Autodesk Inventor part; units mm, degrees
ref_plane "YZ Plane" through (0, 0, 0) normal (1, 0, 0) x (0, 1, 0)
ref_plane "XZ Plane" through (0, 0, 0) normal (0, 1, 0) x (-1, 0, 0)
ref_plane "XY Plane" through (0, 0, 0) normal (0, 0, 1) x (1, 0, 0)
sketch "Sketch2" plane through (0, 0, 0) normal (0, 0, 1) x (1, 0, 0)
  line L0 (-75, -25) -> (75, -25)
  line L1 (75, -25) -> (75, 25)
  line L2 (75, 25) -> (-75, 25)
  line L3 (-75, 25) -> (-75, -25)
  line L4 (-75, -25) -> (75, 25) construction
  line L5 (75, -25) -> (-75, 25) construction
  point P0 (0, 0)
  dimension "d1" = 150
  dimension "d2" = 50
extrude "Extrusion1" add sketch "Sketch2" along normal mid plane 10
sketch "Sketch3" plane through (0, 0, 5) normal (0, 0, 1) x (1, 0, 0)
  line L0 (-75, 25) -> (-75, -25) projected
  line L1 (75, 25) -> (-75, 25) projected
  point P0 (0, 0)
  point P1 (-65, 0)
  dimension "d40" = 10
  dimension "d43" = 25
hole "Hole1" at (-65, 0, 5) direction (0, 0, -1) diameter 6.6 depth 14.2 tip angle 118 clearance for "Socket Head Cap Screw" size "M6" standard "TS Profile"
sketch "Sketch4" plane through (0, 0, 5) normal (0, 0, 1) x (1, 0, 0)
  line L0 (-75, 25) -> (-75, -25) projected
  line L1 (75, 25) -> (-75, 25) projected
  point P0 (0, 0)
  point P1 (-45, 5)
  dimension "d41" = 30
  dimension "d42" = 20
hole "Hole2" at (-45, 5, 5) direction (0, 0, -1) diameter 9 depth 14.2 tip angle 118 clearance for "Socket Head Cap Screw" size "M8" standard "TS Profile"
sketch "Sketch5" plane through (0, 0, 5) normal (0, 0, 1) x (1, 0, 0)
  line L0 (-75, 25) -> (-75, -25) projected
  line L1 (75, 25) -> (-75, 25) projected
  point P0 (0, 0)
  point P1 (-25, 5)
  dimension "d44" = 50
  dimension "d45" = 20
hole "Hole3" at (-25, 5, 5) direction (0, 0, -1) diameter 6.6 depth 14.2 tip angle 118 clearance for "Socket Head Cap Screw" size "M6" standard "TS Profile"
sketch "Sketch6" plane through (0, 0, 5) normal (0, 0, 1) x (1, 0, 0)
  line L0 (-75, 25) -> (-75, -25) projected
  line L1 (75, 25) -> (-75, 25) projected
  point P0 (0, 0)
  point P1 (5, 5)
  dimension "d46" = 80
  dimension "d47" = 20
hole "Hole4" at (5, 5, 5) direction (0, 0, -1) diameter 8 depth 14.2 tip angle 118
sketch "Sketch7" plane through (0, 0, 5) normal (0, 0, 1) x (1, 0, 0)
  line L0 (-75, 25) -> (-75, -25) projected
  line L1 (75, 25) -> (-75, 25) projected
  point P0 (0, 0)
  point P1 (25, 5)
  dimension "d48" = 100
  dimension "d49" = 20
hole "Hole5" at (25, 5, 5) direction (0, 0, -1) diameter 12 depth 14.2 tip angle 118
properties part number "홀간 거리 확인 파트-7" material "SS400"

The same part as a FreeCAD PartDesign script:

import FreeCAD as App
import Part
import Sketcher

doc = App.newDocument("Part")
body = doc.addObject("PartDesign::Body", "Body")

# Sketch on XY plane
sketch1 = body.newObject("Sketcher::SketchObject", "Sketch")
sketch1.AttachmentSupport = (doc.getObject("XY_Plane"), [""])
sketch1.MapMode = "FlatFace"
sketch1.addGeometry(Part.LineSegment(App.Vector(-75, 25, 0), App.Vector(-75, -25, 0)), False)
sketch1.addGeometry(Part.LineSegment(App.Vector(-75, -25, 0), App.Vector(75, -25, 0)), False)
sketch1.addGeometry(Part.LineSegment(App.Vector(75, -25, 0), App.Vector(75, 25, 0)), False)
sketch1.addGeometry(Part.LineSegment(App.Vector(75, 25, 0), App.Vector(-75, 25, 0)), False)
sketch1.addConstraint(Sketcher.Constraint("Coincident", 0, 2, 1, 1))
sketch1.addConstraint(Sketcher.Constraint("Coincident", 1, 2, 2, 1))
sketch1.addConstraint(Sketcher.Constraint("Coincident", 2, 2, 3, 1))
sketch1.addConstraint(Sketcher.Constraint("Coincident", 3, 2, 0, 1))
sketch1.addConstraint(Sketcher.Constraint("Vertical", 0))
sketch1.addConstraint(Sketcher.Constraint("Horizontal", 1))
sketch1.addConstraint(Sketcher.Constraint("Vertical", 2))
sketch1.addConstraint(Sketcher.Constraint("Horizontal", 3))
sketch1.addConstraint(Sketcher.Constraint("Symmetric", 0, 2, 2, 2, -1, 1))
sketch1.addConstraint(Sketcher.Constraint("DistanceX", 1, 1, 1, 2, 150.0))
sketch1.addConstraint(Sketcher.Constraint("DistanceY", 0, 2, 0, 1, 50.0))
pad1 = body.newObject("PartDesign::Pad", "Pad")
pad1.Profile = sketch1
pad1.Length = 10
pad1.Midplane = True

# Sketch on XY plane
sketch2 = body.newObject("Sketcher::SketchObject", "Sketch001")
sketch2.AttachmentSupport = (doc.getObject("XY_Plane"), [""])
sketch2.MapMode = "FlatFace"
sketch2.AttachmentOffset = App.Placement(App.Vector(0, 0, 5), App.Rotation())
sketch2.addGeometry(Part.Circle(App.Vector(-65, 0, 0), App.Vector(0, 0, 1), 3.3), False)
sketch2.addConstraint(Sketcher.Constraint("PointOnObject", 0, 3, -1))
sketch2.addConstraint(Sketcher.Constraint("Diameter", 0, 6.6))
sketch2.addConstraint(Sketcher.Constraint("DistanceX", 0, 3, -1, 1, 65.0))
doc.recompute()
hole = body.newObject("PartDesign::Hole", "Hole")
hole.Profile = sketch2
hole.ThreadType = "None"
hole.Diameter = 6.6
hole.DepthType = "Dimension"
hole.Depth = 14.2
hole.DrillPoint = "Angled"
hole.DrillPointAngle = 118

# Sketch on XY plane
sketch3 = body.newObject("Sketcher::SketchObject", "Sketch002")
sketch3.AttachmentSupport = (doc.getObject("XY_Plane"), [""])
sketch3.MapMode = "FlatFace"
sketch3.AttachmentOffset = App.Placement(App.Vector(0, 0, 5), App.Rotation())
sketch3.addGeometry(Part.Circle(App.Vector(-45, 5, 0), App.Vector(0, 0, 1), 4.5), False)
sketch3.addConstraint(Sketcher.Constraint("Diameter", 0, 9.0))
sketch3.addConstraint(Sketcher.Constraint("DistanceX", 0, 3, -1, 1, 45.0))
sketch3.addConstraint(Sketcher.Constraint("DistanceY", -1, 1, 0, 3, 5.0))
doc.recompute()
hole2 = body.newObject("PartDesign::Hole", "Hole001")
hole2.Profile = sketch3
hole2.ThreadType = "None"
hole2.Diameter = 9
hole2.DepthType = "Dimension"
hole2.Depth = 14.2
hole2.DrillPoint = "Angled"
hole2.DrillPointAngle = 118

# Sketch on XY plane
sketch4 = body.newObject("Sketcher::SketchObject", "Sketch003")
sketch4.AttachmentSupport = (doc.getObject("XY_Plane"), [""])
sketch4.MapMode = "FlatFace"
sketch4.AttachmentOffset = App.Placement(App.Vector(0, 0, 5), App.Rotation())
sketch4.addGeometry(Part.Circle(App.Vector(-25, 5, 0), App.Vector(0, 0, 1), 3.3), False)
sketch4.addConstraint(Sketcher.Constraint("Diameter", 0, 6.6))
sketch4.addConstraint(Sketcher.Constraint("DistanceX", 0, 3, -1, 1, 25.0))
sketch4.addConstraint(Sketcher.Constraint("DistanceY", -1, 1, 0, 3, 5.0))
doc.recompute()
hole3 = body.newObject("PartDesign::Hole", "Hole002")
hole3.Profile = sketch4
hole3.ThreadType = "None"
hole3.Diameter = 6.6
hole3.DepthType = "Dimension"
hole3.Depth = 14.2
hole3.DrillPoint = "Angled"
hole3.DrillPointAngle = 118

# Sketch on XY plane
sketch5 = body.newObject("Sketcher::SketchObject", "Sketch004")
sketch5.AttachmentSupport = (doc.getObject("XY_Plane"), [""])
sketch5.MapMode = "FlatFace"
sketch5.AttachmentOffset = App.Placement(App.Vector(0, 0, 5), App.Rotation())
sketch5.addGeometry(Part.Circle(App.Vector(5, 5, 0), App.Vector(0, 0, 1), 4), False)
sketch5.addConstraint(Sketcher.Constraint("Diameter", 0, 8.0))
sketch5.addConstraint(Sketcher.Constraint("DistanceX", -1, 1, 0, 3, 5.0))
sketch5.addConstraint(Sketcher.Constraint("DistanceY", -1, 1, 0, 3, 5.0))
doc.recompute()
hole4 = body.newObject("PartDesign::Hole", "Hole003")
hole4.Profile = sketch5
hole4.ThreadType = "None"
hole4.Diameter = 8
hole4.DepthType = "Dimension"
hole4.Depth = 14.2
hole4.DrillPoint = "Angled"
hole4.DrillPointAngle = 118

# Sketch on XY plane
sketch6 = body.newObject("Sketcher::SketchObject", "Sketch005")
sketch6.AttachmentSupport = (doc.getObject("XY_Plane"), [""])
sketch6.MapMode = "FlatFace"
sketch6.AttachmentOffset = App.Placement(App.Vector(0, 0, 5), App.Rotation())
sketch6.addGeometry(Part.Circle(App.Vector(25, 5, 0), App.Vector(0, 0, 1), 6), False)
sketch6.addConstraint(Sketcher.Constraint("Diameter", 0, 12.0))
sketch6.addConstraint(Sketcher.Constraint("DistanceX", -1, 1, 0, 3, 25.0))
sketch6.addConstraint(Sketcher.Constraint("DistanceY", -1, 1, 0, 3, 5.0))
doc.recompute()
hole5 = body.newObject("PartDesign::Hole", "Hole004")
hole5.Profile = sketch6
hole5.ThreadType = "None"
hole5.Diameter = 12
hole5.DepthType = "Dimension"
hole5.Depth = 14.2
hole5.DrillPoint = "Angled"
hole5.DrillPointAngle = 118

doc.recompute()
